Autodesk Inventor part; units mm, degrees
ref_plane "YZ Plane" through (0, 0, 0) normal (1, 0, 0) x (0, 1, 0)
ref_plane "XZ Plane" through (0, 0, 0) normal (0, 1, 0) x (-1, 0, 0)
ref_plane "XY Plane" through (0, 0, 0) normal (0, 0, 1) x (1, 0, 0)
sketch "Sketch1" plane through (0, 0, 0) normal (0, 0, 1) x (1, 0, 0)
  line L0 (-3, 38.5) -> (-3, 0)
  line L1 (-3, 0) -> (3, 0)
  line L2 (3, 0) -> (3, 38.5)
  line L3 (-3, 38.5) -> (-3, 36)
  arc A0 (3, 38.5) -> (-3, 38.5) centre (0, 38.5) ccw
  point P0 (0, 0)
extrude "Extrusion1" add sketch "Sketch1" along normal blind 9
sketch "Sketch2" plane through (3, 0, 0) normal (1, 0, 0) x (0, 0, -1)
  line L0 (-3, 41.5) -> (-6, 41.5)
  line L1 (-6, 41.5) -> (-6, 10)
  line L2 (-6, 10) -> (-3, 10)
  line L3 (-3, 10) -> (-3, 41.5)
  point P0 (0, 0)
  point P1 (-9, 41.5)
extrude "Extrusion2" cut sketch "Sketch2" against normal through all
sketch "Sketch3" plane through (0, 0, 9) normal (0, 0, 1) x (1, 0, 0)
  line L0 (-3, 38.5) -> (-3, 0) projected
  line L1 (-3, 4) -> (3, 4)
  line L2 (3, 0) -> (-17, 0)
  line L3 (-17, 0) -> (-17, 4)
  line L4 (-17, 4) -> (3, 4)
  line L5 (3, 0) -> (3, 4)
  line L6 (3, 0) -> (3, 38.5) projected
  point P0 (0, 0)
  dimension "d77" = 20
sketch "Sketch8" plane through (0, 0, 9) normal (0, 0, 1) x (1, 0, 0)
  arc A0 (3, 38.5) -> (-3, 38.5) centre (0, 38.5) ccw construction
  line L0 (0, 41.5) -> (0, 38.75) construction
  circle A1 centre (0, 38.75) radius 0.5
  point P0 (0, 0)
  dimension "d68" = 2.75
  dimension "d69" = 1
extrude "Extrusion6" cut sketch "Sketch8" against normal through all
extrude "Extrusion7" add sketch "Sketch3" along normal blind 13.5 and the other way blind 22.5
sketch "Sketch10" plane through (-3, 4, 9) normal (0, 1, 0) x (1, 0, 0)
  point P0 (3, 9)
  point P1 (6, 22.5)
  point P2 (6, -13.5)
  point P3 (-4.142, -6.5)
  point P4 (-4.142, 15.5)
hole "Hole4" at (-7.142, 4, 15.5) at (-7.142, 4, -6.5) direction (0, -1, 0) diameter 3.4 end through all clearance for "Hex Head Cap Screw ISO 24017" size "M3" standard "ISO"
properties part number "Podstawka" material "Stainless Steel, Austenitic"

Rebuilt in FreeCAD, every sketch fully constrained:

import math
import FreeCAD as App
import Part
import Sketcher

V = App.Vector

doc = App.newDocument("Part")
body = doc.addObject("PartDesign::Body", "Body")

# Sketch on XY plane
sketch1 = body.newObject("Sketcher::SketchObject", "Sketch")
sketch1.AttachmentSupport = (doc.getObject("XY_Plane"), [""])
sketch1.MapMode = "FlatFace"
sketch1.addGeometry([
    Part.ArcOfCircle(Part.Circle(V(0, 38.5, 0), V(0, 0, 1), 3), math.radians(0), math.radians(180)),
    Part.LineSegment(V(-3, 38.5, 0), V(-3, 0, 0)),
    Part.LineSegment(V(-3, 0, 0), V(3, 0, 0)),
    Part.LineSegment(V(3, 0, 0), V(3, 38.5, 0)),
], False)
sketch1.addConstraint([
    Sketcher.Constraint("Tangent", 0, 2, 1, 1),
    Sketcher.Constraint("Coincident", 1, 2, 2, 1),
    Sketcher.Constraint("Coincident", 2, 2, 3, 1),
    Sketcher.Constraint("Tangent", 3, 2, 0, 1),
    Sketcher.Constraint("Vertical", 1),
    Sketcher.Constraint("Horizontal", 2),
    Sketcher.Constraint("Vertical", 3),
    Sketcher.Constraint("Symmetric", 1, 2, 2, 2, -1, 1),
    Sketcher.Constraint("Radius", 0, 3.0),
    Sketcher.Constraint("DistanceY", 1, 2, 1, 1, 38.5),
])
pad1 = body.newObject("PartDesign::Pad", "Pad")
pad1.Profile = sketch1
pad1.Length = 9

# Sketch on YZ plane
sketch2 = body.newObject("Sketcher::SketchObject", "Sketch001")
sketch2.AttachmentSupport = (doc.getObject("YZ_Plane"), [""])
sketch2.MapMode = "FlatFace"
sketch2.AttachmentOffset = App.Placement(V(0, 0, 3), App.Rotation())
sketch2.addGeometry([
    Part.LineSegment(V(10, 3, 0), V(41.5, 3, 0)),
    Part.LineSegment(V(41.5, 3, 0), V(41.5, 6, 0)),
    Part.LineSegment(V(41.5, 6, 0), V(10, 6, 0)),
    Part.LineSegment(V(10, 6, 0), V(10, 3, 0)),
], False)
sketch2.addConstraint([
    Sketcher.Constraint("Coincident", 0, 2, 1, 1),
    Sketcher.Constraint("Coincident", 1, 2, 2, 1),
    Sketcher.Constraint("Coincident", 2, 2, 3, 1),
    Sketcher.Constraint("Coincident", 3, 2, 0, 1),
    Sketcher.Constraint("Horizontal", 0),
    Sketcher.Constraint("Vertical", 1),
    Sketcher.Constraint("Horizontal", 2),
    Sketcher.Constraint("Vertical", 3),
    Sketcher.Constraint("DistanceY", 1, 1, 1, 2, 3.0),
    Sketcher.Constraint("DistanceX", 0, 1, 0, 2, 31.5),
    Sketcher.Constraint("DistanceY", -1, 1, 0, 2, 3.0),
    Sketcher.Constraint("DistanceX", -1, 1, 2, 2, 10.0),
])
pocket1 = body.newObject("PartDesign::Pocket", "Pocket")
pocket1.Profile = sketch2
pocket1.Type = "ThroughAll"

# Sketch on XY plane
sketch3 = body.newObject("Sketcher::SketchObject", "Sketch002")
sketch3.AttachmentSupport = (doc.getObject("XY_Plane"), [""])
sketch3.MapMode = "FlatFace"
sketch3.AttachmentOffset = App.Placement(V(0, 0, 9), App.Rotation())
sketch3.addGeometry(Part.Circle(V(0, 38.75, 0), V(0, 0, 1), 0.5), False)
sketch3.addConstraint([
    Sketcher.Constraint("PointOnObject", 0, 3, -2),
    Sketcher.Constraint("Diameter", 0, 1.0),
    Sketcher.Constraint("DistanceY", -1, 1, 0, 3, 38.75),
])
pocket2 = body.newObject("PartDesign::Pocket", "Pocket001")
pocket2.Profile = sketch3
pocket2.Type = "ThroughAll"

# Sketch on XY plane
sketch4 = body.newObject("Sketcher::SketchObject", "Sketch003")
sketch4.AttachmentSupport = (doc.getObject("XY_Plane"), [""])
sketch4.MapMode = "FlatFace"
sketch4.AttachmentOffset = App.Placement(V(0, 0, 9), App.Rotation())
sketch4.addGeometry([
    Part.LineSegment(V(3, 4, 0), V(-17, 4, 0)),
    Part.LineSegment(V(-17, 4, 0), V(-17, 0, 0)),
    Part.LineSegment(V(-17, 0, 0), V(3, 0, 0)),
    Part.LineSegment(V(3, 0, 0), V(3, 4, 0)),
], False)
sketch4.addConstraint([
    Sketcher.Constraint("Coincident", 0, 2, 1, 1),
    Sketcher.Constraint("Coincident", 1, 2, 2, 1),
    Sketcher.Constraint("Coincident", 2, 2, 3, 1),
    Sketcher.Constraint("Coincident", 3, 2, 0, 1),
    Sketcher.Constraint("Horizontal", 0),
    Sketcher.Constraint("Vertical", 1),
    Sketcher.Constraint("Horizontal", 2),
    Sketcher.Constraint("Vertical", 3),
    Sketcher.Constraint("PointOnObject", 1, 2, -1),
    Sketcher.Constraint("DistanceX", 0, 2, 0, 1, 20.0),
    Sketcher.Constraint("DistanceY", 1, 2, 1, 1, 4.0),
    Sketcher.Constraint("DistanceX", 0, 2, -1, 1, 17.0),
])
pad2 = body.newObject("PartDesign::Pad", "Pad001")
pad2.Profile = sketch4
pad2.Type = "TwoLengths"
pad2.Length = 13.5
pad2.Length2 = 22.5

# Sketch on XZ plane
sketch5 = body.newObject("Sketcher::SketchObject", "Sketch004")
sketch5.AttachmentSupport = (doc.getObject("XZ_Plane"), [""])
sketch5.MapMode = "FlatFace"
sketch5.AttachmentOffset = App.Placement(V(0, 0, -4), App.Rotation())
sketch5.addGeometry([
    Part.Circle(V(-7.142, 15.5, 0), V(0, 0, 1), 1.7),
    Part.Circle(V(-7.142, -6.5, 0), V(0, 0, 1), 1.7),
], False)
sketch5.addConstraint([
    Sketcher.Constraint("Equal", 0, 1),
    Sketcher.Constraint("Vertical", 0, 3, 1, 3),
    Sketcher.Constraint("Diameter", 0, 3.4),
    Sketcher.Constraint("DistanceY", 1, 3, 0, 3, 22.0),
    Sketcher.Constraint("DistanceY", -1, 1, 0, 3, 15.5),
    Sketcher.Constraint("DistanceX", 0, 3, -1, 1, 7.142),
])
doc.recompute()
hole = body.newObject("PartDesign::Hole", "Hole")
hole.Profile = sketch5
hole.ThreadType = "None"
hole.Diameter = 3.4
hole.DepthType = "ThroughAll"
hole.Reversed = True

doc.recompute()
